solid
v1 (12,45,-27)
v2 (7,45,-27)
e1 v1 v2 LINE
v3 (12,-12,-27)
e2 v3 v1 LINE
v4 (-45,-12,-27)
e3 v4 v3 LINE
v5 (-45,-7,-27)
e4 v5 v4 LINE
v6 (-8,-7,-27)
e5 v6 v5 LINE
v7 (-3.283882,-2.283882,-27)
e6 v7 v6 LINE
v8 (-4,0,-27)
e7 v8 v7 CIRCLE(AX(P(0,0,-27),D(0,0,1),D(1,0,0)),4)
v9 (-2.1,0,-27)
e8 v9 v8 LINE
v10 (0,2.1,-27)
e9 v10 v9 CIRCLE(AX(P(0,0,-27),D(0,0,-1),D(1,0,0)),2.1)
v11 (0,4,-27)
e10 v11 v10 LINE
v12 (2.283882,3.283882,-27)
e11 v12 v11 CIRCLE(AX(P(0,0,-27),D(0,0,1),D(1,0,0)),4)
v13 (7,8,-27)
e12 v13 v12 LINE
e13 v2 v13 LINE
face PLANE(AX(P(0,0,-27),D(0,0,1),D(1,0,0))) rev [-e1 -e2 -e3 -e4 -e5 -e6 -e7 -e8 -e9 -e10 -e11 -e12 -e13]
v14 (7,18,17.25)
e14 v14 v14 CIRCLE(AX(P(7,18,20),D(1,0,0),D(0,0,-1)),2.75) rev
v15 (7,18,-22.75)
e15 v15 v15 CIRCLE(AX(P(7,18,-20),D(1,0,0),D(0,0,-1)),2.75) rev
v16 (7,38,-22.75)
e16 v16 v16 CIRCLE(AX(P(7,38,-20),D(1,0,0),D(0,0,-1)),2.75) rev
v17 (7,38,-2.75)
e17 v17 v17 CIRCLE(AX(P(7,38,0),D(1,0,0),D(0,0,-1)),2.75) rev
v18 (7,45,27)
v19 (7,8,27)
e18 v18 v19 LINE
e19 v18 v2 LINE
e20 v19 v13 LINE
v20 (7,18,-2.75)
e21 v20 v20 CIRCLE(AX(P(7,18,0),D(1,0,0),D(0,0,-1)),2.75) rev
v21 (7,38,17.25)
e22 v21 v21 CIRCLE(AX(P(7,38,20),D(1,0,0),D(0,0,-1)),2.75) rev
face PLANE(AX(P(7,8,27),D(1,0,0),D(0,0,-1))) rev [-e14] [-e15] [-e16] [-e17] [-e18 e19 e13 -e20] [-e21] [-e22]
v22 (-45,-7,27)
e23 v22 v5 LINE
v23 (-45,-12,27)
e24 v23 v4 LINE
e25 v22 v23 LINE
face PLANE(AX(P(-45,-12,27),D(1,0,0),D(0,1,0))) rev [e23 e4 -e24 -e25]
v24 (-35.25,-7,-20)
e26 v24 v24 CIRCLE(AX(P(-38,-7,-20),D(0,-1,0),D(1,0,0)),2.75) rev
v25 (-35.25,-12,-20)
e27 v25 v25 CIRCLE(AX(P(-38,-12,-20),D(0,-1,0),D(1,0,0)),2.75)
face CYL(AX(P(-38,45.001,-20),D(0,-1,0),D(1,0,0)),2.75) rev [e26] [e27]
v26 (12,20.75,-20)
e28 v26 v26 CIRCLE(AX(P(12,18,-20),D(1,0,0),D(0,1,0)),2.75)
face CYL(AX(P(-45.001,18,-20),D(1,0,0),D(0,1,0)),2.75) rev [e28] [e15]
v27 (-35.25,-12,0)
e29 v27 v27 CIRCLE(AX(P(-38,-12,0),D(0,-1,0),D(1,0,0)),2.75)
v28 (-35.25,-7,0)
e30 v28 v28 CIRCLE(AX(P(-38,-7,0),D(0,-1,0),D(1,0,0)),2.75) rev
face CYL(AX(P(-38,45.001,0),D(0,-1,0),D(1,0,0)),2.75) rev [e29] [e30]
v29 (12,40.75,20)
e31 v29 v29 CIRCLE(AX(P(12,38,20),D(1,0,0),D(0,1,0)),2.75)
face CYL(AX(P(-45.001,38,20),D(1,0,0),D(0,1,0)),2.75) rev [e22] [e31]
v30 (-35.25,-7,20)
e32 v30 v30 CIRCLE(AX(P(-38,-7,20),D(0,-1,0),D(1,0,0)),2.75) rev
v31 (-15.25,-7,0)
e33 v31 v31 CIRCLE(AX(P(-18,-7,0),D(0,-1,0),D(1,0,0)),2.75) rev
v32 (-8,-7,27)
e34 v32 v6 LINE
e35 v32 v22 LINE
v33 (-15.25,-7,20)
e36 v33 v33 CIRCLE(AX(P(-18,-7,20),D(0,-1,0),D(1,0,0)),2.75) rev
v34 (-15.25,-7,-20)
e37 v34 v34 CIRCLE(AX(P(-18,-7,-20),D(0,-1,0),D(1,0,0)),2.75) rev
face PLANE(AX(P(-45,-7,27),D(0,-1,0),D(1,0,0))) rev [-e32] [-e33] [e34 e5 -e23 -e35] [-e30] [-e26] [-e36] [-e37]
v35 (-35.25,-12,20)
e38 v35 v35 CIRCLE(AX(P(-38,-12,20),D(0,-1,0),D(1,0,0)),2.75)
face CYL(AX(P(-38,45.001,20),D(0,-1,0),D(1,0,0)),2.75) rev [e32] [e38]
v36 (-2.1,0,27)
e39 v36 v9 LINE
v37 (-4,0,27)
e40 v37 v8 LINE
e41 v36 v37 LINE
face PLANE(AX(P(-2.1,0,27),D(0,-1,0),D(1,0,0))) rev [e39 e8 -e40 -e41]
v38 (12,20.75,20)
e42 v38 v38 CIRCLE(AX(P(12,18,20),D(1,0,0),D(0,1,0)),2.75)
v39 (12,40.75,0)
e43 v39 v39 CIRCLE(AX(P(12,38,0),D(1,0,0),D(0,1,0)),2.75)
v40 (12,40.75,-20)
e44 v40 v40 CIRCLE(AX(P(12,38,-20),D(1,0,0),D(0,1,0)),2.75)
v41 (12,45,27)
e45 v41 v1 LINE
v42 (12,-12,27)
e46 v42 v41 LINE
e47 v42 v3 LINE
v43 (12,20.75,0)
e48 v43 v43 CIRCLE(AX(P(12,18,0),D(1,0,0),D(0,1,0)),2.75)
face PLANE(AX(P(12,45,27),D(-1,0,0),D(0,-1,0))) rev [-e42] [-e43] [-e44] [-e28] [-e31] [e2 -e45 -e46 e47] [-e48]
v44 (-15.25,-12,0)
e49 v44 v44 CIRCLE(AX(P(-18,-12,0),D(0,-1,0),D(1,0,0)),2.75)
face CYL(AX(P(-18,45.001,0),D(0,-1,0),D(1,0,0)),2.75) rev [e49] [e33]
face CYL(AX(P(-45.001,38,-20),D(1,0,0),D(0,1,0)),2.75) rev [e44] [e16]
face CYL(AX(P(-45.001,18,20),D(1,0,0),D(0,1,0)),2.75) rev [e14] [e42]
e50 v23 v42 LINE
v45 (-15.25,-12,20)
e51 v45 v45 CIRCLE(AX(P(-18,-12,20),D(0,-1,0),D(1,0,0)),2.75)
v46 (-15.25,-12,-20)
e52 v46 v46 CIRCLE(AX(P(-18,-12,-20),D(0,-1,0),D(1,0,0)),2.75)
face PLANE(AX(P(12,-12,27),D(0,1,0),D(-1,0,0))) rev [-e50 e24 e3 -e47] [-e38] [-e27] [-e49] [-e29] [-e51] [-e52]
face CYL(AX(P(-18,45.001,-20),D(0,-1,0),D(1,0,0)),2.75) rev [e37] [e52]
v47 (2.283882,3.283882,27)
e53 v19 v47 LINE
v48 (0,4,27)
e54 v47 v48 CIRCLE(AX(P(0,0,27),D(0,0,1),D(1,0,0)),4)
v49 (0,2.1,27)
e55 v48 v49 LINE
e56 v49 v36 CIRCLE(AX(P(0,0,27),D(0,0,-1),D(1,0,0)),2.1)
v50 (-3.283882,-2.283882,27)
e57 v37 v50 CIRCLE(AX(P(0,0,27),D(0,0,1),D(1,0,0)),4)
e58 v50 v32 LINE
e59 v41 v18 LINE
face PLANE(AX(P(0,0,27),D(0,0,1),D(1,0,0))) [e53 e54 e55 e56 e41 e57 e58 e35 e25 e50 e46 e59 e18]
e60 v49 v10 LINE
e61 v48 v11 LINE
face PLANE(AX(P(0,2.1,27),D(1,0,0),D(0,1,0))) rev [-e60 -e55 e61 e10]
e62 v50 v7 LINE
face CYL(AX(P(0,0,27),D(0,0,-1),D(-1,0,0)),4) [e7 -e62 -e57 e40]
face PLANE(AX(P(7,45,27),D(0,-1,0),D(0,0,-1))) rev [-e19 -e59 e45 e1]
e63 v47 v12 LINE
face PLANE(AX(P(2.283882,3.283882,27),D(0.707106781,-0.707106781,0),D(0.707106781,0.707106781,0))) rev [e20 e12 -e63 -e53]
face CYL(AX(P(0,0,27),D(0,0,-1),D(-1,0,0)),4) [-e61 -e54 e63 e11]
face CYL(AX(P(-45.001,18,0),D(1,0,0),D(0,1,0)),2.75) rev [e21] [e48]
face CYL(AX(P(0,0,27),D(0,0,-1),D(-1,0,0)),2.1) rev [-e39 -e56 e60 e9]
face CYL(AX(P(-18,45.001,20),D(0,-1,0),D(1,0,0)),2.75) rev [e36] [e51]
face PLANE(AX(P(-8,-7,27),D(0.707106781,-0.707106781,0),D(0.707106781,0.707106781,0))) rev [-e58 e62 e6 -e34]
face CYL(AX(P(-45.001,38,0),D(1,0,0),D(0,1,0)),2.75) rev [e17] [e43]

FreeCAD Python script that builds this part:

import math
import FreeCAD as App
import Part
import Sketcher

V = App.Vector
Q = App.Units.Quantity

doc = App.newDocument("Part")
body = doc.addObject("PartDesign::Body", "Body")

# Sketch on XY plane
sketch1 = body.newObject("Sketcher::SketchObject", "Sketch")
sketch1.AttachmentSupport = (doc.getObject("XY_Plane"), [""])
sketch1.MapMode = "FlatFace"
sketch1.addGeometry(Part.LineSegment(V(-3.3, -2.3, 0), V(-8, -7, 0)), False)
sketch1.addGeometry(Part.LineSegment(V(-8, -7, 0), V(-45, -7, 0)), False)
sketch1.addGeometry(Part.LineSegment(V(-45, -7, 0), V(-45, -12, 0)), False)
sketch1.addGeometry(Part.LineSegment(V(-45, -12, 0), V(12, -12, 0)), False)
sketch1.addGeometry(Part.LineSegment(V(12, -12, 0), V(12, 45, 0)), False)
sketch1.addGeometry(Part.LineSegment(V(12, 45, 0), V(7, 45, 0)), False)
sketch1.addGeometry(Part.LineSegment(V(7, 45, 0), V(7, 8, 0)), False)
sketch1.addGeometry(Part.LineSegment(V(7, 8, 0), V(2.3, 3.3, 0)), False)
sketch1.addGeometry(Part.ArcOfCircle(Part.Circle(V(0, 0, 0), V(0, 0, 1), 4), math.radians(55), math.radians(90)), False)
sketch1.addGeometry(Part.LineSegment(V(0, 4, 0), V(0, 2.1, 0)), False)
sketch1.addGeometry(Part.ArcOfCircle(Part.Circle(V(0, 0, 0), V(0, 0, 1), 2.1), math.radians(180), math.radians(450)), False)
sketch1.addGeometry(Part.LineSegment(V(-2.1, 0, 0), V(-4, 0, 0)), False)
sketch1.addGeometry(Part.ArcOfCircle(Part.Circle(V(0, 0, 0), V(0, 0, 1), 4), math.radians(180), math.radians(215)), False)
sketch1.addConstraint(Sketcher.Constraint("Coincident", 0, 2, 1, 1))
sketch1.addConstraint(Sketcher.Constraint("Coincident", 1, 2, 2, 1))
sketch1.addConstraint(Sketcher.Constraint("Coincident", 2, 2, 3, 1))
sketch1.addConstraint(Sketcher.Constraint("Coincident", 3, 2, 4, 1))
sketch1.addConstraint(Sketcher.Constraint("Coincident", 4, 2, 5, 1))
sketch1.addConstraint(Sketcher.Constraint("Coincident", 5, 2, 6, 1))
sketch1.addConstraint(Sketcher.Constraint("Coincident", 6, 2, 7, 1))
sketch1.addConstraint(Sketcher.Constraint("Coincident", 7, 2, 8, 1))
sketch1.addConstraint(Sketcher.Constraint("Coincident", 8, 2, 9, 1))
sketch1.addConstraint(Sketcher.Constraint("Coincident", 9, 2, 10, 2))
sketch1.addConstraint(Sketcher.Constraint("Coincident", 10, 1, 11, 1))
sketch1.addConstraint(Sketcher.Constraint("Coincident", 11, 2, 12, 1))
sketch1.addConstraint(Sketcher.Constraint("Coincident", 12, 2, 0, 1))
sketch1.addConstraint(Sketcher.Constraint("Horizontal", 1))
sketch1.addConstraint(Sketcher.Constraint("Vertical", 2))
sketch1.addConstraint(Sketcher.Constraint("Horizontal", 3))
sketch1.addConstraint(Sketcher.Constraint("Vertical", 4))
sketch1.addConstraint(Sketcher.Constraint("Horizontal", 5))
sketch1.addConstraint(Sketcher.Constraint("Vertical", 6))
sketch1.addConstraint(Sketcher.Constraint("Vertical", 9))
sketch1.addConstraint(Sketcher.Constraint("Horizontal", 11))
sketch1.addConstraint(Sketcher.Constraint("Coincident", 8, 3, -1, 1))
sketch1.addConstraint(Sketcher.Constraint("Coincident", 10, 3, -1, 1))
sketch1.addConstraint(Sketcher.Constraint("Coincident", 12, 3, -1, 1))
sketch1.addConstraint(Sketcher.Constraint("Equal", 8, 12))
sketch1.addConstraint(Sketcher.Constraint("PointOnObject", 8, 2, -2))
sketch1.addConstraint(Sketcher.Constraint("PointOnObject", 10, 1, -1))
sketch1.addConstraint(Sketcher.Constraint("Parallel", 0, 7))
sketch1.addConstraint(Sketcher.Constraint("Equal", 5, 2))
sketch1.addConstraint(Sketcher.Constraint("Equal", 3, 4))
sketch1.addConstraint(Sketcher.Constraint("Equal", 1, 6))
sketch1.addConstraint(Sketcher.Constraint("Equal", 0, 7))
sketch1.addConstraint(Sketcher.Constraint("Radius", 8, Q("4 mm")))
sketch1.addConstraint(Sketcher.Constraint("Radius", 10, Q("2.1 mm")))
sketch1.addConstraint(Sketcher.Constraint("DistanceX", 1, 2, 1, 1, Q("37 mm")))
sketch1.addConstraint(Sketcher.Constraint("DistanceX", 3, 1, 3, 2, Q("57 mm")))
sketch1.addConstraint(Sketcher.Constraint("DistanceX", 5, 2, 5, 1, Q("5 mm")))
sketch1.addConstraint(Sketcher.Constraint("Angle", 0, Q("-135 deg")))
sketch1.addConstraint(Sketcher.Constraint("DistanceX", 0, 2, -1, 1, Q("8 mm")))
pad1 = body.newObject("PartDesign::Pad", "Pad")
pad1.Profile = sketch1
pad1.Type = "TwoLengths"
pad1.Length = 27
pad1.Length2 = 27

# Sketch on YZ plane
sketch2 = body.newObject("Sketcher::SketchObject", "Sketch001")
sketch2.AttachmentSupport = (doc.getObject("YZ_Plane"), [""])
sketch2.MapMode = "FlatFace"
sketch2.AttachmentOffset = App.Placement(V(0, 0, 12), App.Rotation())
sketch2.addGeometry(Part.Circle(V(38, 20, 0), V(0, 0, 1), 2.8), False)
sketch2.addConstraint(Sketcher.Constraint("Diameter", 0, Q("5.5 mm")))
sketch2.addConstraint(Sketcher.Constraint("DistanceX", -1, 1, 0, 3, Q("38 mm")))
sketch2.addConstraint(Sketcher.Constraint("DistanceY", -1, 1, 0, 3, Q("20 mm")))
pocket1 = body.newObject("PartDesign::Pocket", "Pocket")
pocket1.Profile = sketch2
pocket1.Type = "UpToFirst"

# Sketch on YZ plane
sketch3 = body.newObject("Sketcher::SketchObject", "Sketch002")
sketch3.AttachmentSupport = (doc.getObject("YZ_Plane"), [""])
sketch3.MapMode = "FlatFace"
sketch3.AttachmentOffset = App.Placement(V(0, 0, 12), App.Rotation())
sketch3.addGeometry(Part.Circle(V(38, 0, 0), V(0, 0, 1), 2.8), False)
sketch3.addConstraint(Sketcher.Constraint("PointOnObject", 0, 3, -1))
sketch3.addConstraint(Sketcher.Constraint("Diameter", 0, Q("5.5 mm")))
sketch3.addConstraint(Sketcher.Constraint("DistanceX", -1, 1, 0, 3, Q("38 mm")))
pocket2 = body.newObject("PartDesign::Pocket", "Pocket001")
pocket2.Profile = sketch3
pocket2.Type = "UpToFirst"

# Sketch on YZ plane
sketch4 = body.newObject("Sketcher::SketchObject", "Sketch003")
sketch4.AttachmentSupport = (doc.getObject("YZ_Plane"), [""])
sketch4.MapMode = "FlatFace"
sketch4.AttachmentOffset = App.Placement(V(0, 0, 12), App.Rotation())
sketch4.addGeometry(Part.Circle(V(38, -20, 0), V(0, 0, 1), 2.8), False)
sketch4.addConstraint(Sketcher.Constraint("Diameter", 0, Q("5.5 mm")))
sketch4.addConstraint(Sketcher.Constraint("DistanceX", -1, 1, 0, 3, Q("38 mm")))
sketch4.addConstraint(Sketcher.Constraint("DistanceY", 0, 3, -1, 1, Q("20 mm")))
pocket3 = body.newObject("PartDesign::Pocket", "Pocket002")
pocket3.Profile = sketch4
pocket3.Type = "UpToFirst"

# Sketch on YZ plane
sketch5 = body.newObject("Sketcher::SketchObject", "Sketch004")
sketch5.AttachmentSupport = (doc.getObject("YZ_Plane"), [""])
sketch5.MapMode = "FlatFace"
sketch5.AttachmentOffset = App.Placement(V(0, 0, 12), App.Rotation())
sketch5.addGeometry(Part.Circle(V(18, 20, 0), V(0, 0, 1), 2.8), False)
sketch5.addConstraint(Sketcher.Constraint("Diameter", 0, Q("5.5 mm")))
sketch5.addConstraint(Sketcher.Constraint("DistanceX", -1, 1, 0, 3, Q("18 mm")))
sketch5.addConstraint(Sketcher.Constraint("DistanceY", -1, 1, 0, 3, Q("20 mm")))
pocket4 = body.newObject("PartDesign::Pocket", "Pocket003")
pocket4.Profile = sketch5
pocket4.Type = "UpToFirst"

# Sketch on YZ plane
sketch6 = body.newObject("Sketcher::SketchObject", "Sketch005")
sketch6.AttachmentSupport = (doc.getObject("YZ_Plane"), [""])
sketch6.MapMode = "FlatFace"
sketch6.AttachmentOffset = App.Placement(V(0, 0, 12), App.Rotation())
sketch6.addGeometry(Part.Circle(V(18, 0, 0), V(0, 0, 1), 2.8), False)
sketch6.addConstraint(Sketcher.Constraint("PointOnObject", 0, 3, -1))
sketch6.addConstraint(Sketcher.Constraint("Diameter", 0, Q("5.5 mm")))
sketch6.addConstraint(Sketcher.Constraint("DistanceX", -1, 1, 0, 3, Q("18 mm")))
pocket5 = body.newObject("PartDesign::Pocket", "Pocket004")
pocket5.Profile = sketch6
pocket5.Type = "UpToFirst"

# Sketch on YZ plane
sketch7 = body.newObject("Sketcher::SketchObject", "Sketch006")
sketch7.AttachmentSupport = (doc.getObject("YZ_Plane"), [""])
sketch7.MapMode = "FlatFace"
sketch7.AttachmentOffset = App.Placement(V(0, 0, 12), App.Rotation())
sketch7.addGeometry(Part.Circle(V(18, -20, 0), V(0, 0, 1), 2.8), False)
sketch7.addConstraint(Sketcher.Constraint("Diameter", 0, Q("5.5 mm")))
sketch7.addConstraint(Sketcher.Constraint("DistanceX", -1, 1, 0, 3, Q("18 mm")))
sketch7.addConstraint(Sketcher.Constraint("DistanceY", 0, 3, -1, 1, Q("20 mm")))
pocket6 = body.newObject("PartDesign::Pocket", "Pocket005")
pocket6.Profile = sketch7
pocket6.Type = "UpToFirst"

# Sketch on XZ plane
sketch8 = body.newObject("Sketcher::SketchObject", "Sketch007")
sketch8.AttachmentSupport = (doc.getObject("XZ_Plane"), [""])
sketch8.MapMode = "FlatFace"
sketch8.AttachmentOffset = App.Placement(V(0, 0, 12), App.Rotation())
sketch8.addGeometry(Part.Circle(V(-38, -20, 0), V(0, 0, 1), 2.8), False)
sketch8.addConstraint(Sketcher.Constraint("Diameter", 0, Q("5.5 mm")))
sketch8.addConstraint(Sketcher.Constraint("DistanceX", 0, 3, -1, 1, Q("38 mm")))
sketch8.addConstraint(Sketcher.Constraint("DistanceY", 0, 3, -1, 1, Q("20 mm")))
pocket7 = body.newObject("PartDesign::Pocket", "Pocket006")
pocket7.Profile = sketch8
pocket7.Type = "UpToFirst"

# Sketch on XZ plane
sketch9 = body.newObject("Sketcher::SketchObject", "Sketch008")
sketch9.AttachmentSupport = (doc.getObject("XZ_Plane"), [""])
sketch9.MapMode = "FlatFace"
sketch9.AttachmentOffset = App.Placement(V(0, 0, 12), App.Rotation())
sketch9.addGeometry(Part.Circle(V(-38, 0, 0), V(0, 0, 1), 2.8), False)
sketch9.addConstraint(Sketcher.Constraint("PointOnObject", 0, 3, -1))
sketch9.addConstraint(Sketcher.Constraint("Diameter", 0, Q("5.5 mm")))
sketch9.addConstraint(Sketcher.Constraint("DistanceX", 0, 3, -1, 1, Q("38 mm")))
pocket8 = body.newObject("PartDesign::Pocket", "Pocket007")
pocket8.Profile = sketch9
pocket8.Type = "UpToFirst"

# Sketch on XZ plane
sketch10 = body.newObject("Sketcher::SketchObject", "Sketch009")
sketch10.AttachmentSupport = (doc.getObject("XZ_Plane"), [""])
sketch10.MapMode = "FlatFace"
sketch10.AttachmentOffset = App.Placement(V(0, 0, 12), App.Rotation())
sketch10.addGeometry(Part.Circle(V(-38, 20, 0), V(0, 0, 1), 2.8), False)
sketch10.addConstraint(Sketcher.Constraint("Diameter", 0, Q("5.5 mm")))
sketch10.addConstraint(Sketcher.Constraint("DistanceX", 0, 3, -1, 1, Q("38 mm")))
sketch10.addConstraint(Sketcher.Constraint("DistanceY", -1, 1, 0, 3, Q("20 mm")))
pocket9 = body.newObject("PartDesign::Pocket", "Pocket008")
pocket9.Profile = sketch10
pocket9.Type = "UpToFirst"

# Sketch on XZ plane
sketch11 = body.newObject("Sketcher::SketchObject", "Sketch010")
sketch11.AttachmentSupport = (doc.getObject("XZ_Plane"), [""])
sketch11.MapMode = "FlatFace"
sketch11.AttachmentOffset = App.Placement(V(0, 0, 12), App.Rotation())
sketch11.addGeometry(Part.Circle(V(-18, -20, 0), V(0, 0, 1), 2.8), False)
sketch11.addConstraint(Sketcher.Constraint("Diameter", 0, Q("5.5 mm")))
sketch11.addConstraint(Sketcher.Constraint("DistanceX", 0, 3, -1, 1, Q("18 mm")))
sketch11.addConstraint(Sketcher.Constraint("DistanceY", 0, 3, -1, 1, Q("20 mm")))
pocket10 = body.newObject("PartDesign::Pocket", "Pocket009")
pocket10.Profile = sketch11
pocket10.Type = "UpToFirst"

# Sketch on XZ plane
sketch12 = body.newObject("Sketcher::SketchObject", "Sketch011")
sketch12.AttachmentSupport = (doc.getObject("XZ_Plane"), [""])
sketch12.MapMode = "FlatFace"
sketch12.AttachmentOffset = App.Placement(V(0, 0, 12), App.Rotation())
sketch12.addGeometry(Part.Circle(V(-18, 0, 0), V(0, 0, 1), 2.8), False)
sketch12.addConstraint(Sketcher.Constraint("PointOnObject", 0, 3, -1))
sketch12.addConstraint(Sketcher.Constraint("Diameter", 0, Q("5.5 mm")))
sketch12.addConstraint(Sketcher.Constraint("DistanceX", 0, 3, -1, 1, Q("18 mm")))
pocket11 = body.newObject("PartDesign::Pocket", "Pocket010")
pocket11.Profile = sketch12
pocket11.Type = "UpToFirst"

# Sketch on XZ plane
sketch13 = body.newObject("Sketcher::SketchObject", "Sketch012")
sketch13.AttachmentSupport = (doc.getObject("XZ_Plane"), [""])
sketch13.MapMode = "FlatFace"
sketch13.AttachmentOffset = App.Placement(V(0, 0, 12), App.Rotation())
sketch13.addGeometry(Part.Circle(V(-18, 20, 0), V(0, 0, 1), 2.8), False)
sketch13.addConstraint(Sketcher.Constraint("Diameter", 0, Q("5.5 mm")))
sketch13.addConstraint(Sketcher.Constraint("DistanceX", 0, 3, -1, 1, Q("18 mm")))
sketch13.addConstraint(Sketcher.Constraint("DistanceY", -1, 1, 0, 3, Q("20 mm")))
pocket12 = body.newObject("PartDesign::Pocket", "Pocket011")
pocket12.Profile = sketch13
pocket12.Type = "UpToFirst"

doc.recompute()
